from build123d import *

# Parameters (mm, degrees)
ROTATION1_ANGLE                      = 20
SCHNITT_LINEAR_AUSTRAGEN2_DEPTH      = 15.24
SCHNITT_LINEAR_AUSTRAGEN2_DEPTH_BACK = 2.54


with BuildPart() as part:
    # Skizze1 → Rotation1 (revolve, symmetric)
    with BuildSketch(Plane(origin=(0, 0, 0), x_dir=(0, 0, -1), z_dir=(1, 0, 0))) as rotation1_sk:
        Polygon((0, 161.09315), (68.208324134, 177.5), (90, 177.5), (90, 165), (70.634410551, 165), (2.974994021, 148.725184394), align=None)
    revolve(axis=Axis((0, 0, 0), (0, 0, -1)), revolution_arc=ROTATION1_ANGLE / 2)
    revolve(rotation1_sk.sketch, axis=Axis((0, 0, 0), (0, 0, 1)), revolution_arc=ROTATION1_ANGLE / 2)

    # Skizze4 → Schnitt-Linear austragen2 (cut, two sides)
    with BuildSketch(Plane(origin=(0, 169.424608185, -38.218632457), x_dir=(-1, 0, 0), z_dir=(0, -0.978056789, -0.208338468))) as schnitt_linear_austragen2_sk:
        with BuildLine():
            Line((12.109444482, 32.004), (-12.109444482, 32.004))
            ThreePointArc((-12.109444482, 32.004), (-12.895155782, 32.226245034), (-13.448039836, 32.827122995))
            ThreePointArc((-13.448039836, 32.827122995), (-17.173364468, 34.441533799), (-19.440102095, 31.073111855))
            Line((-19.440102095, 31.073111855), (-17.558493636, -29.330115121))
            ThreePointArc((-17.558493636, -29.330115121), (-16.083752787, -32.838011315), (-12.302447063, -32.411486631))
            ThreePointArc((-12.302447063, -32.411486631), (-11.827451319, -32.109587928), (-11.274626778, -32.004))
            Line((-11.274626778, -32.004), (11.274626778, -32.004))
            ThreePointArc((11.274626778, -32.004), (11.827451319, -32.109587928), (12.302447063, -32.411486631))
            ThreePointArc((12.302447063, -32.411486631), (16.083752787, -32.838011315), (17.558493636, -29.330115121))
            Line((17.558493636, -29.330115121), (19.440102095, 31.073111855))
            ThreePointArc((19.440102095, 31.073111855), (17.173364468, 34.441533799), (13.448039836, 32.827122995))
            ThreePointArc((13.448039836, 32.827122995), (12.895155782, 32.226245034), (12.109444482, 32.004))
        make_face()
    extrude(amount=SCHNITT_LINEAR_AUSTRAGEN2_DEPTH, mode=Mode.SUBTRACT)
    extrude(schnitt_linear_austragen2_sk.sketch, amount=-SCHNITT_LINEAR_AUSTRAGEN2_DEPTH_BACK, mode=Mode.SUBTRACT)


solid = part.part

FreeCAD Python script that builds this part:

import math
import FreeCAD as App
import Part
import Sketcher

V = App.Vector
Q = App.Units.Quantity


def add_polygon(sketch, points):
    """Adds a closed chain of lines whose ends are joined by coincident constraints."""
    first, n = sketch.GeometryCount, len(points)
    for a, b in zip(points, points[1:] + points[:1]):
        sketch.addGeometry(Part.LineSegment(App.Vector(*a, 0), App.Vector(*b, 0)), False)
    for i in range(n):
        sketch.addConstraint(Sketcher.Constraint("Coincident", first + i, 2, first + (i + 1) % n, 1))

doc = App.newDocument("Part")
params = doc.addObject("Spreadsheet::Sheet", "Params")
for row, (alias, value) in enumerate([
    ("sketch1_width", "12.5 mm"),
    ("revolution_angle", "10 deg"),
    ("sketch2_width", "12.5 mm"),
    ("revolution2_angle", "10 deg"),
    ("sketch3_radius", "1.5 mm"),
], start=1):
    params.set(f"A{row}", alias)
    params.set(f"B{row}", "=" + value)
    params.setAlias(f"B{row}", alias)

body = doc.addObject("PartDesign::Body", "Body")

sketch1 = doc.addObject("Sketcher::SketchObject", "Sketch")
body.addObject(sketch1)
sketch1.AttachmentSupport = (doc.YZ_Plane, [""])
sketch1.MapMode = "FlatFace"
add_polygon(sketch1, [(178, -68), (161, 0), (149, -3), (165, -71), (165, -90), (178, -90)])
sketch1.addConstraint([
    Sketcher.Constraint("Vertical", 3),
    Sketcher.Constraint("Horizontal", 4),
    Sketcher.Constraint("Vertical", 5),
    Sketcher.Constraint("PointOnObject", 0, 2, -1),
    Sketcher.Constraint("Perpendicular", 0, 1),
    Sketcher.Constraint("Perpendicular", 1, 2),
    Sketcher.Constraint("DistanceX", 4, 1, 4, 2, Q("12.5 mm")),
    Sketcher.Constraint("DistanceX", -1, 1, 2, 2, Q("165 mm")),
    Sketcher.Constraint("DistanceY", 3, 2, -1, 1, Q("90 mm")),
    Sketcher.Constraint("DistanceY", 3, 2, 3, 1, Q("19.365589 mm")),
    Sketcher.Constraint("Distance", 2, Q("69.589268 mm")),
    Sketcher.Constraint("DistanceY", 5, 1, 5, 2, Q("21.791676 mm")),
])
sketch1.setExpression("Constraints[12]", "Params.sketch1_width")
revolution = doc.addObject("PartDesign::Revolution", "Revolution")
body.addObject(revolution)
revolution.Profile = sketch1
revolution.ReferenceAxis = (sketch1, ["V_Axis"])
revolution.setExpression("Angle", "Params.revolution_angle")
revolution.Reversed = True

sketch2 = doc.addObject("Sketcher::SketchObject", "Sketch001")
body.addObject(sketch2)
sketch2.AttachmentSupport = (doc.YZ_Plane, [""])
sketch2.MapMode = "FlatFace"
add_polygon(sketch2, [(178, -68), (161, 0), (149, -3), (165, -71), (165, -90), (178, -90)])
sketch2.addConstraint([
    Sketcher.Constraint("Vertical", 3),
    Sketcher.Constraint("Horizontal", 4),
    Sketcher.Constraint("Vertical", 5),
    Sketcher.Constraint("PointOnObject", 0, 2, -1),
    Sketcher.Constraint("Perpendicular", 0, 1),
    Sketcher.Constraint("Perpendicular", 1, 2),
    Sketcher.Constraint("DistanceX", 4, 1, 4, 2, Q("12.5 mm")),
    Sketcher.Constraint("DistanceX", -1, 1, 2, 2, Q("165 mm")),
    Sketcher.Constraint("DistanceY", 3, 2, -1, 1, Q("90 mm")),
    Sketcher.Constraint("DistanceY", 3, 2, 3, 1, Q("19.365589 mm")),
    Sketcher.Constraint("Distance", 2, Q("69.589268 mm")),
    Sketcher.Constraint("DistanceY", 5, 1, 5, 2, Q("21.791676 mm")),
])
sketch2.setExpression("Constraints[12]", "Params.sketch2_width")
revolution2 = doc.addObject("PartDesign::Revolution", "Revolution001")
body.addObject(revolution2)
revolution2.Profile = sketch2
revolution2.ReferenceAxis = (sketch2, ["V_Axis"])
revolution2.setExpression("Angle", "Params.revolution2_angle")

sketch3 = doc.addObject("Sketcher::SketchObject", "Sketch002")
body.addObject(sketch3)
sketch3.Placement = App.Placement(V(0, 169.424608, -38.218632), App.Rotation(V(-1, 0, 0), V(0, 0.208338468, -0.978056789), V(0, -0.978056789, -0.208338468), "ZXY"))
sketch3.addGeometry([
    Part.LineSegment(V(12.1, 32, 0), V(-12.1, 32, 0)),
    Part.ArcOfCircle(Part.Circle(V(-12.1, 33.5, 0), V(0, 0, 1), 1.5), math.radians(-153), math.radians(-90)),
    Part.ArcOfCircle(Part.Circle(V(-16.3, 31.4, 0), V(0, 0, 1), 3.2), math.radians(27), math.radians(186)),
    Part.LineSegment(V(-19.4, 31.1, 0), V(-17.6, -29.3, 0)),
    Part.ArcOfCircle(Part.Circle(V(-14.5, -30.1, 0), V(0, 0, 1), 3.2), math.radians(166), math.radians(313)),
    Part.ArcOfCircle(Part.Circle(V(-11.3, -33.5, 0), V(0, 0, 1), 1.5), math.radians(90), math.radians(133)),
    Part.LineSegment(V(-11.3, -32, 0), V(11.3, -32, 0)),
    Part.ArcOfCircle(Part.Circle(V(11.3, -33.5, 0), V(0, 0, 1), 1.5), math.radians(47), math.radians(90)),
    Part.ArcOfCircle(Part.Circle(V(14.5, -30.1, 0), V(0, 0, 1), 3.2), math.radians(-133), math.radians(14)),
    Part.LineSegment(V(17.6, -29.3, 0), V(19.4, 31.1, 0)),
    Part.ArcOfCircle(Part.Circle(V(16.3, 31.4, 0), V(0, 0, 1), 3.2), math.radians(-6), math.radians(153)),
    Part.ArcOfCircle(Part.Circle(V(12.1, 33.5, 0), V(0, 0, 1), 1.5), math.radians(-90), math.radians(-27)),
], False)
sketch3.addConstraint([
    Sketcher.Constraint("Tangent", 0, 2, 1, 2),
    Sketcher.Constraint("Tangent", 1, 1, 2, 1),
    Sketcher.Constraint("Coincident", 2, 2, 3, 1),
    Sketcher.Constraint("Coincident", 3, 2, 4, 1),
    Sketcher.Constraint("Tangent", 4, 2, 5, 2),
    Sketcher.Constraint("Tangent", 5, 1, 6, 1),
    Sketcher.Constraint("Tangent", 6, 2, 7, 2),
    Sketcher.Constraint("Tangent", 7, 1, 8, 1),
    Sketcher.Constraint("Coincident", 8, 2, 9, 1),
    Sketcher.Constraint("Coincident", 9, 2, 10, 1),
    Sketcher.Constraint("Tangent", 10, 2, 11, 2),
    Sketcher.Constraint("Tangent", 11, 1, 0, 1),
    Sketcher.Constraint("Horizontal", 0),
    Sketcher.Constraint("Horizontal", 6),
    Sketcher.Constraint("Equal", 2, 4),
    Sketcher.Constraint("Equal", 1, 5),
    Sketcher.Constraint("Equal", 5, 7),
    Sketcher.Constraint("Equal", 4, 8),
    Sketcher.Constraint("Equal", 8, 10),
    Sketcher.Constraint("Equal", 7, 11),
    Sketcher.Constraint("Symmetric", 4, 3, 8, 3, -2),
    Sketcher.Constraint("Symmetric", 2, 3, 10, 3, -2),
    Sketcher.Constraint("Horizontal", 3, 2, 8, 2),
    Sketcher.Constraint("Horizontal", 2, 2, 9, 2),
    Sketcher.Constraint("Radius", 1, Q("1.5 mm")),
    Sketcher.Constraint("Radius", 2, Q("3.175 mm")),
    Sketcher.Constraint("DistanceY", -1, 1, 1, 3, Q("33.504 mm")),
    Sketcher.Constraint("DistanceX", 4, 3, -1, 1, Q("14.478 mm")),
    Sketcher.Constraint("DistanceY", 4, 3, -1, 1, Q("30.099 mm")),
    Sketcher.Constraint("DistanceY", 5, 3, -1, 1, Q("33.504 mm")),
    Sketcher.Constraint("DistanceX", 0, 2, 0, 1, Q("24.218889 mm")),
    Sketcher.Constraint("DistanceX", 2, 3, -1, 1, Q("16.2814 mm")),
    Sketcher.Constraint("DistanceY", -1, 1, 2, 2, Q("31.073112 mm")),
    Sketcher.Constraint("DistanceX", 3, 2, 7, 3, Q("28.83312 mm")),
])
sketch3.setExpression("Constraints[24]", "Params.sketch3_radius")
pocket1 = doc.addObject("PartDesign::Pocket", "Pocket")
body.addObject(pocket1)
pocket1.Profile = sketch3
pocket1.Type = "ThroughAll"
pocket1.Midplane = True

doc.recompute()
